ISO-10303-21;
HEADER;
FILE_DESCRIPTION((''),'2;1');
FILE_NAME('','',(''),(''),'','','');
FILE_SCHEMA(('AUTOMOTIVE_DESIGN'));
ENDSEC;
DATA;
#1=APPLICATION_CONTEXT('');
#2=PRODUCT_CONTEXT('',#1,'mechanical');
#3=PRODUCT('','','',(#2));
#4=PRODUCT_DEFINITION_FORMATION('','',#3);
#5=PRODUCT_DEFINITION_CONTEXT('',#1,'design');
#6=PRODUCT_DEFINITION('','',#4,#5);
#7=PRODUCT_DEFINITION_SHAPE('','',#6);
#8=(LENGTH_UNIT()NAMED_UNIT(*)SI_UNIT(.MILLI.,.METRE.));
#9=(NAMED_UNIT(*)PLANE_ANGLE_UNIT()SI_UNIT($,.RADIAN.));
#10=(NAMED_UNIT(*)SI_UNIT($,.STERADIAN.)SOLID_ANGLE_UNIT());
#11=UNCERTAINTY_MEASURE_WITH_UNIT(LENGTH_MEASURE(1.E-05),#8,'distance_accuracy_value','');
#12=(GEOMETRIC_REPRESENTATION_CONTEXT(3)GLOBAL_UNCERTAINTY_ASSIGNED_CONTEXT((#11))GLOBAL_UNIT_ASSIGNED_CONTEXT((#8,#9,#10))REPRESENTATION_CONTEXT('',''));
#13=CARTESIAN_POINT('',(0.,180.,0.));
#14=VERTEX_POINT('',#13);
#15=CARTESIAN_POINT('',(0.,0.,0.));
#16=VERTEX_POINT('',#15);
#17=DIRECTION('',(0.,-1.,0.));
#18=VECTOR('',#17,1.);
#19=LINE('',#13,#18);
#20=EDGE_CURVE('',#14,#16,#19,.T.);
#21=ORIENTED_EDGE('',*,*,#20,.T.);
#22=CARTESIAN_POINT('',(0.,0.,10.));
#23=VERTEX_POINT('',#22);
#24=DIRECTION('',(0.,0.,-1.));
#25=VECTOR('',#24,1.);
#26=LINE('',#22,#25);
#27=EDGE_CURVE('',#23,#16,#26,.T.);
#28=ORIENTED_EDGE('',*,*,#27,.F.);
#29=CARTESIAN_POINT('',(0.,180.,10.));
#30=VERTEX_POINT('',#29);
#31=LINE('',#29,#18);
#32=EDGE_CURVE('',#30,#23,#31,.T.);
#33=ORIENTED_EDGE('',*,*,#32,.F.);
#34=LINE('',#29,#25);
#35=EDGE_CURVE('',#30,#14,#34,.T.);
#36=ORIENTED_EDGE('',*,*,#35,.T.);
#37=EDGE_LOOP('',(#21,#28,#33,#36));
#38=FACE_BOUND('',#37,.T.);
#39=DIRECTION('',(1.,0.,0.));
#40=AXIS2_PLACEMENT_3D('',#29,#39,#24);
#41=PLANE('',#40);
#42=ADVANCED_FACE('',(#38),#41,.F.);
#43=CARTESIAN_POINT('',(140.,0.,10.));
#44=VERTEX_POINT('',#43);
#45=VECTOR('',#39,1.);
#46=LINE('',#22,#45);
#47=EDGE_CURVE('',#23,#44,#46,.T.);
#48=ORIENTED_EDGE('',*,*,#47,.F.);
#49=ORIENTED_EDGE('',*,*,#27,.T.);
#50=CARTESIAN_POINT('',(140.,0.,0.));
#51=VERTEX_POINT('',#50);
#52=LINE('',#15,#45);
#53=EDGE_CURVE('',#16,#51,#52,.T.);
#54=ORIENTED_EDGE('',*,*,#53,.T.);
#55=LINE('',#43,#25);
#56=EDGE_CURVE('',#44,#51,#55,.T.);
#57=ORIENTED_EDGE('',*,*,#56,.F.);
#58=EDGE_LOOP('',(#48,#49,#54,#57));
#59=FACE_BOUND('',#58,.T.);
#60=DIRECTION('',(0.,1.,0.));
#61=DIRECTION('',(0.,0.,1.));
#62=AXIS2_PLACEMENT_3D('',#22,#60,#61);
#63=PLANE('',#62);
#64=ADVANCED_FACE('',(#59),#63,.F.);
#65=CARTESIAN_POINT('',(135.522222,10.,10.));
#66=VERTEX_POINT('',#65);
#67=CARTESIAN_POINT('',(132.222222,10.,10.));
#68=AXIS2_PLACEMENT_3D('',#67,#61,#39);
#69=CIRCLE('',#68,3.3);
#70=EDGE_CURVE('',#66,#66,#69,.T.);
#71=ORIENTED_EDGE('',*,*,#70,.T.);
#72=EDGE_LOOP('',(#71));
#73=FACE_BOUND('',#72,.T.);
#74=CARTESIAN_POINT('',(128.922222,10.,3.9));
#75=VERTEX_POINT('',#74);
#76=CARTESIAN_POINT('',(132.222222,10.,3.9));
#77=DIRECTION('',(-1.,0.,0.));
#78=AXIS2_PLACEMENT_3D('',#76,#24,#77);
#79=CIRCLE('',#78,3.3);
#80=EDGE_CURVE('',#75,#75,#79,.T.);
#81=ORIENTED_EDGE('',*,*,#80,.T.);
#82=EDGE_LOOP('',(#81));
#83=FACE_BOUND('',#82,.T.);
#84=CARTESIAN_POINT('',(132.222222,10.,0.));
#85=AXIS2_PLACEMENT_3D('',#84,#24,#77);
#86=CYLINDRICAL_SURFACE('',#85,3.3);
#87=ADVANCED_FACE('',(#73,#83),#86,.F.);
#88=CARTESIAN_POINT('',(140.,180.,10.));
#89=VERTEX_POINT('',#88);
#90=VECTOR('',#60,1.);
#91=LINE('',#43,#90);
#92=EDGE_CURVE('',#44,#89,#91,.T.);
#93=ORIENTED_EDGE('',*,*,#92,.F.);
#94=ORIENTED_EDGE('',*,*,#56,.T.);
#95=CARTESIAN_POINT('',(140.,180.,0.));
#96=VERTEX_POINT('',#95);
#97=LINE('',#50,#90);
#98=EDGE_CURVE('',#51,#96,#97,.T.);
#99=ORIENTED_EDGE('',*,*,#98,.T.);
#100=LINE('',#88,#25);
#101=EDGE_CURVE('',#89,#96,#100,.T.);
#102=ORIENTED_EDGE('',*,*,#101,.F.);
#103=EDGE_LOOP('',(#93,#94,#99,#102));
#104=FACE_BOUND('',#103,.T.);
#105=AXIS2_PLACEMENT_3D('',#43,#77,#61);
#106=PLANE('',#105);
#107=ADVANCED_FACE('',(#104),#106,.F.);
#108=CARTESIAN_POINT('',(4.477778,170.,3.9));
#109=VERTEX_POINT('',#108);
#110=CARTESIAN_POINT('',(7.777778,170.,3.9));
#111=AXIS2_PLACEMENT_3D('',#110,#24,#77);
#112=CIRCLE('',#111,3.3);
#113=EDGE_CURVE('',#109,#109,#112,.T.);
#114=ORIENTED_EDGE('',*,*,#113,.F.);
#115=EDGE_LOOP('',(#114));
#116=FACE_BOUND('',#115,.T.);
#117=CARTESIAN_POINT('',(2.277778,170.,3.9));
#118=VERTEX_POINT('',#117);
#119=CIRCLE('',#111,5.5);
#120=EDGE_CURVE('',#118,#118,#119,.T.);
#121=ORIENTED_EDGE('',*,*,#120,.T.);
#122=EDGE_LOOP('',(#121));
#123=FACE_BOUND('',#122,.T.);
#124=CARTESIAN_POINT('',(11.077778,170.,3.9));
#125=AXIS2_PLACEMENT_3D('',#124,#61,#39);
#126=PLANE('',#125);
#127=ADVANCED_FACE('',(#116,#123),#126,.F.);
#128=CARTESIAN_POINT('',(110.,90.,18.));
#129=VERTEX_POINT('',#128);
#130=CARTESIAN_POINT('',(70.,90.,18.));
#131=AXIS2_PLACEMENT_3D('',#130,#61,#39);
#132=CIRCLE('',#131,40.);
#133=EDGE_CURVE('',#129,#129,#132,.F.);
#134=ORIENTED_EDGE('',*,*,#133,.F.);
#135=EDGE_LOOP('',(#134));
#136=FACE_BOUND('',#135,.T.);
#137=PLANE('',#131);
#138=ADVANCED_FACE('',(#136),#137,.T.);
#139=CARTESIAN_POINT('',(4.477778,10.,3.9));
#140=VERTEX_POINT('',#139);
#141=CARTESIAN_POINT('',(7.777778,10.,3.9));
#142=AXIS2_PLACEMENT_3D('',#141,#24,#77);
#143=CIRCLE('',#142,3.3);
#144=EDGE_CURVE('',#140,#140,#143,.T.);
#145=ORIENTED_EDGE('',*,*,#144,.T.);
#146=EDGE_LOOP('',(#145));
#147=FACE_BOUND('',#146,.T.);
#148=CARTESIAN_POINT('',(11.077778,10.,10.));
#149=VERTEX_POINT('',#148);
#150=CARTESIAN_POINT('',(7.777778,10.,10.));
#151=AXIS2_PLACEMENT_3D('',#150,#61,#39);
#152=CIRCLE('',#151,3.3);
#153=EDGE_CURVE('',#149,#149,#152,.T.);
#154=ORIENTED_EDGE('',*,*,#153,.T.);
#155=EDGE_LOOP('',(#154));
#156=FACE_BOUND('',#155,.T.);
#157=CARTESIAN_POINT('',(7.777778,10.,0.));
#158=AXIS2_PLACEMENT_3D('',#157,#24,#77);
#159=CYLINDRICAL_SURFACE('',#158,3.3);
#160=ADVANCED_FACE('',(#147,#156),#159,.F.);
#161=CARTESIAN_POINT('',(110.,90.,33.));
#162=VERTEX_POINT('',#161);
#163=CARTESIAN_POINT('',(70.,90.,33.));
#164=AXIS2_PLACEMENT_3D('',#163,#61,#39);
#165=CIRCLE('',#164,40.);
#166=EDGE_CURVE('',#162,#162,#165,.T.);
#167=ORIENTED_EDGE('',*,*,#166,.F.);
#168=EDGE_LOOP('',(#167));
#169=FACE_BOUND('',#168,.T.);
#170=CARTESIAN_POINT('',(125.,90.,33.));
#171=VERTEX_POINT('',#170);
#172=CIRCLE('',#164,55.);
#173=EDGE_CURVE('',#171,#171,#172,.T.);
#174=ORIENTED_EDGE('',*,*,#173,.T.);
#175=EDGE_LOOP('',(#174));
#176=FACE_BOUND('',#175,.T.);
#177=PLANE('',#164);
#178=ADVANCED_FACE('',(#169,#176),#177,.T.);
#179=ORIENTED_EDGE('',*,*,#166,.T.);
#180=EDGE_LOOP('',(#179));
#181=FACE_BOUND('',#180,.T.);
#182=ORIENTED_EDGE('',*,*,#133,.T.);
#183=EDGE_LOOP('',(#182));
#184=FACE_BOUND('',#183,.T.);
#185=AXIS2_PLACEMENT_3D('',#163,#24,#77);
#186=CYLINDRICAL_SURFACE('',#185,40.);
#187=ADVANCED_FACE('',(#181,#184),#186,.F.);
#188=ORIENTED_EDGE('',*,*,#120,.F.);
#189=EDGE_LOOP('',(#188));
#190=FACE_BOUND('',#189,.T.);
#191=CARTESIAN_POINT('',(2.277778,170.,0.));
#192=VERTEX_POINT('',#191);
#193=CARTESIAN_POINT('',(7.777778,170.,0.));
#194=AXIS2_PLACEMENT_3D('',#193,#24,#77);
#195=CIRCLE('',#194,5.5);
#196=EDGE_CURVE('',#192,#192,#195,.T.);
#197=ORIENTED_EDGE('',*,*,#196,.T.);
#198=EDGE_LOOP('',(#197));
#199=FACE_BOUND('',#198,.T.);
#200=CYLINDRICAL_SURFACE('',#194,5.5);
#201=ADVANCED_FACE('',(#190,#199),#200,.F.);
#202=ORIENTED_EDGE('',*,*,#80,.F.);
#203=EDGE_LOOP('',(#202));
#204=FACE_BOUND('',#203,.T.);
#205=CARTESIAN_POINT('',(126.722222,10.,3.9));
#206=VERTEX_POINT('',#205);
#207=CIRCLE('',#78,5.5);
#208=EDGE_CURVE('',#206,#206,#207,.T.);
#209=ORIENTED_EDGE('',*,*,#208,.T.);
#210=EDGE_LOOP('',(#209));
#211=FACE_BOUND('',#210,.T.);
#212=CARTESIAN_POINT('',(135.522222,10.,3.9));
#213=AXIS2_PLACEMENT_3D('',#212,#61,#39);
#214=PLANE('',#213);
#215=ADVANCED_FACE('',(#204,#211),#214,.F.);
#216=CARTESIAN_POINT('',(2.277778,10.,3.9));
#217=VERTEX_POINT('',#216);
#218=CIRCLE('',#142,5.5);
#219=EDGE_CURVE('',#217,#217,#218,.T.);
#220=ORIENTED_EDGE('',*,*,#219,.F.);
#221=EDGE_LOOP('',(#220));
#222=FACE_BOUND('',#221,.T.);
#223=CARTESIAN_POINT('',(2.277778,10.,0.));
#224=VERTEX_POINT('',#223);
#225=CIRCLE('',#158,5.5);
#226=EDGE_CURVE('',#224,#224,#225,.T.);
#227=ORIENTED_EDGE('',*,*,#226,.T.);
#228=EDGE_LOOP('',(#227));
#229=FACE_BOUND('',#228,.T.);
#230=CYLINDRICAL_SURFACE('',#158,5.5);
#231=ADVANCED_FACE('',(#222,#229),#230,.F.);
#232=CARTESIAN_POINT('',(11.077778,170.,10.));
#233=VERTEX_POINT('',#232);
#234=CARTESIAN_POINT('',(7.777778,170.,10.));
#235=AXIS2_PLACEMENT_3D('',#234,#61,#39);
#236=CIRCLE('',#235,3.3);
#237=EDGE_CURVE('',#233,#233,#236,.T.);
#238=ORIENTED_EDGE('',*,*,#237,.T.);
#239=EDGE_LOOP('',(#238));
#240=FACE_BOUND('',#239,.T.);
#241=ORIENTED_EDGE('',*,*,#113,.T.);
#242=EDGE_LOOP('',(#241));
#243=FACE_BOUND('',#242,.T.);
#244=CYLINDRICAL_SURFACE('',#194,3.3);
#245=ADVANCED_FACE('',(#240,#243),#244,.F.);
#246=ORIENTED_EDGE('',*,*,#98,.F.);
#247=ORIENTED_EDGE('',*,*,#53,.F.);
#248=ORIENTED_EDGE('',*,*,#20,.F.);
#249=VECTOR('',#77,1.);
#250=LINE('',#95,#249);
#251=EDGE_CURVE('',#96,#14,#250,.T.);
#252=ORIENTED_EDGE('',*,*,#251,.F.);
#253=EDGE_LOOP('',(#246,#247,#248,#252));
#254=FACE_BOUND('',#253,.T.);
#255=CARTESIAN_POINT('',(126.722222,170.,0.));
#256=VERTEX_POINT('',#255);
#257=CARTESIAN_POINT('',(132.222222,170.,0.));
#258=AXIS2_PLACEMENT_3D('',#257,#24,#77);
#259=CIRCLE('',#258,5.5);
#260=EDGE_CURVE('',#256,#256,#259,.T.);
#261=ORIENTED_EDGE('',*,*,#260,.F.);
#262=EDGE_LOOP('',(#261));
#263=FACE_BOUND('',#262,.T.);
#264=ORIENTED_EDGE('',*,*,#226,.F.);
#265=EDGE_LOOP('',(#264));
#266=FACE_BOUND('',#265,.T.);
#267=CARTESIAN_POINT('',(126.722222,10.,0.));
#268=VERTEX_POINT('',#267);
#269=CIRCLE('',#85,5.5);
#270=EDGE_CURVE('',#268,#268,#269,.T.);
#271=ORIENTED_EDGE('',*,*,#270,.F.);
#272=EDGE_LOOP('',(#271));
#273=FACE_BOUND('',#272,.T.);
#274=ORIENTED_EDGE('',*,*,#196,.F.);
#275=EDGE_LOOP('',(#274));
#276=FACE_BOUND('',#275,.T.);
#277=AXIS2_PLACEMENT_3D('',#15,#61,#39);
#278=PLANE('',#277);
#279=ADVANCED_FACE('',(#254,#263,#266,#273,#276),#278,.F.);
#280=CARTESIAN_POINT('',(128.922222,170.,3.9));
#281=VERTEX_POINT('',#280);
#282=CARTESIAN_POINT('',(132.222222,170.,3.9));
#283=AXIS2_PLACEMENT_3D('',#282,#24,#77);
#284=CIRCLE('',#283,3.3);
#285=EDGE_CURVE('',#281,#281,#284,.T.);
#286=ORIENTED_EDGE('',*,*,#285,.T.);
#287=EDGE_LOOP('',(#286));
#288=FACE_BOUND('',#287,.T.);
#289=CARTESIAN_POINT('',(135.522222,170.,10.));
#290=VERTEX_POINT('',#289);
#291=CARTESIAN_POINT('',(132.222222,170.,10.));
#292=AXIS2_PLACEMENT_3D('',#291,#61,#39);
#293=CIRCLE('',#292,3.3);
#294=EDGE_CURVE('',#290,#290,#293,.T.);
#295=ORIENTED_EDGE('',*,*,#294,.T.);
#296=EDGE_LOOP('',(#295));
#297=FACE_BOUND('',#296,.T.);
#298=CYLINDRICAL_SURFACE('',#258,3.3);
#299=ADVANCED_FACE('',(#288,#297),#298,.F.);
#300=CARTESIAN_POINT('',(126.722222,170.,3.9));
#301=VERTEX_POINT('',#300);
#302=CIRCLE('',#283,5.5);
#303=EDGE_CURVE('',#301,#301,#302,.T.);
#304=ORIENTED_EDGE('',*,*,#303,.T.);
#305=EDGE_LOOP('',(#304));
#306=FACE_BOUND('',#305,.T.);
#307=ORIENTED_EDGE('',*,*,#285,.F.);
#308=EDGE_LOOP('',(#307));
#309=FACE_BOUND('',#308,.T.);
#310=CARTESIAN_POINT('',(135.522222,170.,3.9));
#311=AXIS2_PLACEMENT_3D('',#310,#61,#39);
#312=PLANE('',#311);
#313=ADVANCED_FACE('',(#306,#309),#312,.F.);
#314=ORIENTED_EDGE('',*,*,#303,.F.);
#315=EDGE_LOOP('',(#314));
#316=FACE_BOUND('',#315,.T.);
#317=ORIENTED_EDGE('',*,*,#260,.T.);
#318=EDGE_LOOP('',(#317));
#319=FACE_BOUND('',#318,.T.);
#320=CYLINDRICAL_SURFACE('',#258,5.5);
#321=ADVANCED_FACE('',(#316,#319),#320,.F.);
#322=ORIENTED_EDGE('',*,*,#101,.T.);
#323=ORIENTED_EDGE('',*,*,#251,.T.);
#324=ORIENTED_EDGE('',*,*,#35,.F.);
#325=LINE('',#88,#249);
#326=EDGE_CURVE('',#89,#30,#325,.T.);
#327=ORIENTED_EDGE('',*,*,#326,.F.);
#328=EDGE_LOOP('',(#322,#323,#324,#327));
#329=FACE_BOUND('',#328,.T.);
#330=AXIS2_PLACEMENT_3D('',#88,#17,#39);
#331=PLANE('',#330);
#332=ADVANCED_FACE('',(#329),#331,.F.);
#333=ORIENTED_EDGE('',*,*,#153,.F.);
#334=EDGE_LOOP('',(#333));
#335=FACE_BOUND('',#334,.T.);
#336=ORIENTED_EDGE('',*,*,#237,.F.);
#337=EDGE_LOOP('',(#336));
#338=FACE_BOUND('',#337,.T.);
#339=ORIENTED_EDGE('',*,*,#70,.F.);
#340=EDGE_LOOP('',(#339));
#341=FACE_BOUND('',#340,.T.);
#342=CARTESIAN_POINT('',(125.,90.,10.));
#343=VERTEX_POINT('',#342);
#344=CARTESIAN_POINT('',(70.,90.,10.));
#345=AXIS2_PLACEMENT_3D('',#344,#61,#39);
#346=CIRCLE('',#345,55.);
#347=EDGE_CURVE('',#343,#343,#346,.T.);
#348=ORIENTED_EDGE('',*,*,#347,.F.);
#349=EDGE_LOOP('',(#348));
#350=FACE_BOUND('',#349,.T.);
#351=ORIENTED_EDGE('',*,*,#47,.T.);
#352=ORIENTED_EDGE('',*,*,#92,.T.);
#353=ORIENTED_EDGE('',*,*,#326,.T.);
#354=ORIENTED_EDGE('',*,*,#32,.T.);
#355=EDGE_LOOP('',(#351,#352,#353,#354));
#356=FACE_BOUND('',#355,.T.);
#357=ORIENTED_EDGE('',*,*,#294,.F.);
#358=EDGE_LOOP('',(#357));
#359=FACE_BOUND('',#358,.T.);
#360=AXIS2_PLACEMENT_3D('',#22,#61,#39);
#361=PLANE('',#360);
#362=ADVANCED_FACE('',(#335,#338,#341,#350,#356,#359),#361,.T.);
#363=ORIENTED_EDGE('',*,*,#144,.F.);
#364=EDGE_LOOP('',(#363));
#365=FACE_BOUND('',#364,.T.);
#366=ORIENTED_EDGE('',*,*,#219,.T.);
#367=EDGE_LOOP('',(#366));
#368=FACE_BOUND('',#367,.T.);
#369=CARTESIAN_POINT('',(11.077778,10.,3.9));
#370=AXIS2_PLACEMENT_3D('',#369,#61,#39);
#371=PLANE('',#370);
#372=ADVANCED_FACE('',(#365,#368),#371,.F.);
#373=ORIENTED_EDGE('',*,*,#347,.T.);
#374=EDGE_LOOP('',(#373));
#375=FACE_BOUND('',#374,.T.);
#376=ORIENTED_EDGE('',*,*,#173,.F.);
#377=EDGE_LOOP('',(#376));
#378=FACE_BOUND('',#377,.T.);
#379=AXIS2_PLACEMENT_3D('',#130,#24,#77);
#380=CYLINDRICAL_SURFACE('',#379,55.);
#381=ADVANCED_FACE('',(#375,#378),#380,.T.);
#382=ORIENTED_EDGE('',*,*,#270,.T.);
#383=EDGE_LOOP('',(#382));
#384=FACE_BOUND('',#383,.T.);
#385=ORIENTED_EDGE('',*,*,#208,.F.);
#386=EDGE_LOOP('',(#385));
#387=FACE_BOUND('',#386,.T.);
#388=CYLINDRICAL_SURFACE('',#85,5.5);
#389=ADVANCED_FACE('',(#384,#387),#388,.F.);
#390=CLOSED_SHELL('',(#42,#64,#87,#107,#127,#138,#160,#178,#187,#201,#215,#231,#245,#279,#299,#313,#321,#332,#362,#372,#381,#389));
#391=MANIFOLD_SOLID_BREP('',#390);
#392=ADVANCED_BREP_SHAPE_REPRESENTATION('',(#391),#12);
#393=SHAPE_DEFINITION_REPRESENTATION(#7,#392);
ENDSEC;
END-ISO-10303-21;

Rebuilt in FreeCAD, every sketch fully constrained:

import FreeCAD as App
import Part
import Sketcher

V = App.Vector

doc = App.newDocument("Part")
body = doc.addObject("PartDesign::Body", "Body")

# Sketch on XY plane
sketch1 = body.newObject("Sketcher::SketchObject", "Sketch")
sketch1.AttachmentSupport = (doc.getObject("XY_Plane"), [""])
sketch1.MapMode = "FlatFace"
sketch1.addGeometry(Part.LineSegment(V(0, 180, 0), V(0, 0, 0)), False)
sketch1.addGeometry(Part.LineSegment(V(0, 0, 0), V(140, 0, 0)), False)
sketch1.addGeometry(Part.LineSegment(V(140, 0, 0), V(140, 180, 0)), False)
sketch1.addGeometry(Part.LineSegment(V(140, 180, 0), V(0, 180, 0)), False)
sketch1.addConstraint(Sketcher.Constraint("Coincident", 0, 2, 1, 1))
sketch1.addConstraint(Sketcher.Constraint("Coincident", 1, 2, 2, 1))
sketch1.addConstraint(Sketcher.Constraint("Coincident", 2, 2, 3, 1))
sketch1.addConstraint(Sketcher.Constraint("Coincident", 3, 2, 0, 1))
sketch1.addConstraint(Sketcher.Constraint("Vertical", 0))
sketch1.addConstraint(Sketcher.Constraint("Horizontal", 1))
sketch1.addConstraint(Sketcher.Constraint("Vertical", 2))
sketch1.addConstraint(Sketcher.Constraint("Horizontal", 3))
sketch1.addConstraint(Sketcher.Constraint("Coincident", 0, 2, -1, 1))
sketch1.addConstraint(Sketcher.Constraint("DistanceX", 1, 1, 1, 2, 140.0))
sketch1.addConstraint(Sketcher.Constraint("DistanceY", 0, 2, 0, 1, 180.0))
pad1 = body.newObject("PartDesign::Pad", "Pad")
pad1.Profile = sketch1
pad1.Length = 10

# Sketch on XY plane
sketch2 = body.newObject("Sketcher::SketchObject", "Sketch001")
sketch2.AttachmentSupport = (doc.getObject("XY_Plane"), [""])
sketch2.MapMode = "FlatFace"
sketch2.AttachmentOffset = App.Placement(V(0, 0, 10), App.Rotation())
sketch2.addGeometry(Part.Circle(V(70, 90, 0), V(0, 0, 1), 55), False)
sketch2.addConstraint(Sketcher.Constraint("Diameter", 0, 110.0))
sketch2.addConstraint(Sketcher.Constraint("DistanceX", -1, 1, 0, 3, 70.0))
sketch2.addConstraint(Sketcher.Constraint("DistanceY", -1, 1, 0, 3, 90.0))
pad2 = body.newObject("PartDesign::Pad", "Pad001")
pad2.Profile = sketch2
pad2.Length = 8

# Sketch on XY plane
sketch3 = body.newObject("Sketcher::SketchObject", "Sketch002")
sketch3.AttachmentSupport = (doc.getObject("XY_Plane"), [""])
sketch3.MapMode = "FlatFace"
sketch3.AttachmentOffset = App.Placement(V(0, 0, 18), App.Rotation())
sketch3.addGeometry(Part.Circle(V(70, 90, 0), V(0, 0, 1), 55), False)
sketch3.addGeometry(Part.Circle(V(70, 90, 0), V(0, 0, 1), 40), False)
sketch3.addConstraint(Sketcher.Constraint("Coincident", 1, 3, 0, 3))
sketch3.addConstraint(Sketcher.Constraint("Diameter", 0, 110.0))
sketch3.addConstraint(Sketcher.Constraint("Diameter", 1, 80.0))
sketch3.addConstraint(Sketcher.Constraint("DistanceX", -1, 1, 0, 3, 70.0))
sketch3.addConstraint(Sketcher.Constraint("DistanceY", -1, 1, 0, 3, 90.0))
pad3 = body.newObject("PartDesign::Pad", "Pad002")
pad3.Profile = sketch3
pad3.Length = 15

# Sketch on XY plane
sketch4 = body.newObject("Sketcher::SketchObject", "Sketch003")
sketch4.AttachmentSupport = (doc.getObject("XY_Plane"), [""])
sketch4.MapMode = "FlatFace"
sketch4.addGeometry(Part.Circle(V(132.2, 170, 0), V(0, 0, 1), 3.3), False)
sketch4.addGeometry(Part.Circle(V(7.8, 170, 0), V(0, 0, 1), 3.3), False)
sketch4.addGeometry(Part.Circle(V(7.8, 10, 0), V(0, 0, 1), 3.3), False)
sketch4.addGeometry(Part.Circle(V(132.2, 10, 0), V(0, 0, 1), 3.3), False)
sketch4.addConstraint(Sketcher.Constraint("Equal", 0, 1))
sketch4.addConstraint(Sketcher.Constraint("Equal", 1, 2))
sketch4.addConstraint(Sketcher.Constraint("Equal", 2, 3))
sketch4.addConstraint(Sketcher.Constraint("Horizontal", 0, 3, 1, 3))
sketch4.addConstraint(Sketcher.Constraint("Horizontal", 2, 3, 3, 3))
sketch4.addConstraint(Sketcher.Constraint("Vertical", 1, 3, 2, 3))
sketch4.addConstraint(Sketcher.Constraint("Vertical", 0, 3, 3, 3))
sketch4.addConstraint(Sketcher.Constraint("Diameter", 0, 6.6))
sketch4.addConstraint(Sketcher.Constraint("DistanceY", -1, 1, 0, 3, 170.0))
sketch4.addConstraint(Sketcher.Constraint("DistanceY", -1, 1, 2, 3, 10.0))
sketch4.addConstraint(Sketcher.Constraint("DistanceX", -1, 1, 0, 3, 132.222222))
sketch4.addConstraint(Sketcher.Constraint("DistanceX", -1, 1, 1, 3, 7.777778))
doc.recompute()
hole = body.newObject("PartDesign::Hole", "Hole")
hole.Profile = sketch4
hole.ThreadType = "None"
hole.Diameter = 6.6
hole.DepthType = "ThroughAll"
hole.HoleCutType = "Counterbore"
hole.HoleCutDiameter = 11
hole.HoleCutDepth = 3.9
hole.Reversed = True

doc.recompute()
